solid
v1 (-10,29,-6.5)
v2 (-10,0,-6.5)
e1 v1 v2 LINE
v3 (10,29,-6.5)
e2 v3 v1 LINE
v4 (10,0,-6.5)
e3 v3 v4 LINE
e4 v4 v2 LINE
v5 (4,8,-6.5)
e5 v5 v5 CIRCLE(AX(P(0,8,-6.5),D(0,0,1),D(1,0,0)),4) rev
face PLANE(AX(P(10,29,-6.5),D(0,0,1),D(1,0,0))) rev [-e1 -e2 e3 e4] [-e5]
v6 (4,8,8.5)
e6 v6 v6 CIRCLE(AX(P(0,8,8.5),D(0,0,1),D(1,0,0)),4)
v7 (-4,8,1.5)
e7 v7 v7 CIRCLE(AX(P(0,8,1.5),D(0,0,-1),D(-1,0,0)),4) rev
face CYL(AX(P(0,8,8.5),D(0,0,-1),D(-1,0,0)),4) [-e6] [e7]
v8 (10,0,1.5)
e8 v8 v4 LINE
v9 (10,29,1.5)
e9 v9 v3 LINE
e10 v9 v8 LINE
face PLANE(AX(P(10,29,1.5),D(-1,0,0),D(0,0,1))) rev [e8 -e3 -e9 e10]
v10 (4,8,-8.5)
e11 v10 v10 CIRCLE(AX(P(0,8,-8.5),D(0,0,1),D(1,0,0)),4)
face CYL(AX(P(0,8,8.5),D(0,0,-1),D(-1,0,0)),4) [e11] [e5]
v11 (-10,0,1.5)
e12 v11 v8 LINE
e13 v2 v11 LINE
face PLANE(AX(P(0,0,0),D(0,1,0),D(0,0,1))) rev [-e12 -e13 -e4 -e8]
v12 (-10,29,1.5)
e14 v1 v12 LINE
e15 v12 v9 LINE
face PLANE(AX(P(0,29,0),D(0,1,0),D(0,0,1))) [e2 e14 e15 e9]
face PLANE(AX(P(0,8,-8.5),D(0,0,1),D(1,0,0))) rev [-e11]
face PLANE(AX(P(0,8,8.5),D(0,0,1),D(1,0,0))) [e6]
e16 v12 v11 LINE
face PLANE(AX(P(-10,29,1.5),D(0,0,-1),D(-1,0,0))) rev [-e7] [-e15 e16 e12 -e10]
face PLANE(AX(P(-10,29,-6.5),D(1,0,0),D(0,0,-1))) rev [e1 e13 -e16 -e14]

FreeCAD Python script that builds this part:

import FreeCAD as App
import Part
import Sketcher

V = App.Vector
Q = App.Units.Quantity

doc = App.newDocument("Part")
body = doc.addObject("PartDesign::Body", "Body")

sketch1 = body.newObject("Sketcher::SketchObject", "Sketch")
sketch1.AttachmentSupport = (doc.getObject("XZ_Plane"), [""])
sketch1.MapMode = "FlatFace"
sketch1.addGeometry([
    Part.LineSegment(V(-10, -6, 0), V(-10, 2, 0)),
    Part.LineSegment(V(-10, 2, 0), V(10, 2, 0)),
    Part.LineSegment(V(10, 2, 0), V(10, -6, 0)),
    Part.LineSegment(V(10, -6, 0), V(-10, -6, 0)),
], False)
sketch1.addConstraint([
    Sketcher.Constraint("Coincident", 0, 2, 1, 1),
    Sketcher.Constraint("Coincident", 1, 2, 2, 1),
    Sketcher.Constraint("Coincident", 2, 2, 3, 1),
    Sketcher.Constraint("Coincident", 3, 2, 0, 1),
    Sketcher.Constraint("Vertical", 0),
    Sketcher.Constraint("Horizontal", 1),
    Sketcher.Constraint("Vertical", 2),
    Sketcher.Constraint("Horizontal", 3),
    Sketcher.Constraint("DistanceX", 1, 1, 1, 2, Q("20 mm")),
    Sketcher.Constraint("DistanceY", 0, 1, 0, 2, Q("8 mm")),
    Sketcher.Constraint("DistanceX", 0, 2, -1, 1, Q("10 mm")),
    Sketcher.Constraint("DistanceY", -1, 1, 0, 2, Q("1.5 mm")),
])
pad1 = body.newObject("PartDesign::Pad", "Pad")
pad1.Profile = sketch1
pad1.Length = 29
pad1.Reversed = True

sketch2 = body.newObject("Sketcher::SketchObject", "Sketch001")
sketch2.AttachmentSupport = (doc.getObject("XY_Plane"), [""])
sketch2.MapMode = "FlatFace"
sketch2.AttachmentOffset = App.Placement(V(0, 0, -8.5), App.Rotation())
sketch2.addGeometry(Part.Circle(V(0, 8, 0), V(0, 0, 1), 4), False)
sketch2.addConstraint([
    Sketcher.Constraint("PointOnObject", 0, 3, -2),
    Sketcher.Constraint("Diameter", 0, Q("8 mm")),
    Sketcher.Constraint("DistanceY", -1, 1, 0, 3, Q("8 mm")),
])
pad2 = body.newObject("PartDesign::Pad", "Pad001")
pad2.Profile = sketch2
pad2.Length = 17

doc.recompute()
